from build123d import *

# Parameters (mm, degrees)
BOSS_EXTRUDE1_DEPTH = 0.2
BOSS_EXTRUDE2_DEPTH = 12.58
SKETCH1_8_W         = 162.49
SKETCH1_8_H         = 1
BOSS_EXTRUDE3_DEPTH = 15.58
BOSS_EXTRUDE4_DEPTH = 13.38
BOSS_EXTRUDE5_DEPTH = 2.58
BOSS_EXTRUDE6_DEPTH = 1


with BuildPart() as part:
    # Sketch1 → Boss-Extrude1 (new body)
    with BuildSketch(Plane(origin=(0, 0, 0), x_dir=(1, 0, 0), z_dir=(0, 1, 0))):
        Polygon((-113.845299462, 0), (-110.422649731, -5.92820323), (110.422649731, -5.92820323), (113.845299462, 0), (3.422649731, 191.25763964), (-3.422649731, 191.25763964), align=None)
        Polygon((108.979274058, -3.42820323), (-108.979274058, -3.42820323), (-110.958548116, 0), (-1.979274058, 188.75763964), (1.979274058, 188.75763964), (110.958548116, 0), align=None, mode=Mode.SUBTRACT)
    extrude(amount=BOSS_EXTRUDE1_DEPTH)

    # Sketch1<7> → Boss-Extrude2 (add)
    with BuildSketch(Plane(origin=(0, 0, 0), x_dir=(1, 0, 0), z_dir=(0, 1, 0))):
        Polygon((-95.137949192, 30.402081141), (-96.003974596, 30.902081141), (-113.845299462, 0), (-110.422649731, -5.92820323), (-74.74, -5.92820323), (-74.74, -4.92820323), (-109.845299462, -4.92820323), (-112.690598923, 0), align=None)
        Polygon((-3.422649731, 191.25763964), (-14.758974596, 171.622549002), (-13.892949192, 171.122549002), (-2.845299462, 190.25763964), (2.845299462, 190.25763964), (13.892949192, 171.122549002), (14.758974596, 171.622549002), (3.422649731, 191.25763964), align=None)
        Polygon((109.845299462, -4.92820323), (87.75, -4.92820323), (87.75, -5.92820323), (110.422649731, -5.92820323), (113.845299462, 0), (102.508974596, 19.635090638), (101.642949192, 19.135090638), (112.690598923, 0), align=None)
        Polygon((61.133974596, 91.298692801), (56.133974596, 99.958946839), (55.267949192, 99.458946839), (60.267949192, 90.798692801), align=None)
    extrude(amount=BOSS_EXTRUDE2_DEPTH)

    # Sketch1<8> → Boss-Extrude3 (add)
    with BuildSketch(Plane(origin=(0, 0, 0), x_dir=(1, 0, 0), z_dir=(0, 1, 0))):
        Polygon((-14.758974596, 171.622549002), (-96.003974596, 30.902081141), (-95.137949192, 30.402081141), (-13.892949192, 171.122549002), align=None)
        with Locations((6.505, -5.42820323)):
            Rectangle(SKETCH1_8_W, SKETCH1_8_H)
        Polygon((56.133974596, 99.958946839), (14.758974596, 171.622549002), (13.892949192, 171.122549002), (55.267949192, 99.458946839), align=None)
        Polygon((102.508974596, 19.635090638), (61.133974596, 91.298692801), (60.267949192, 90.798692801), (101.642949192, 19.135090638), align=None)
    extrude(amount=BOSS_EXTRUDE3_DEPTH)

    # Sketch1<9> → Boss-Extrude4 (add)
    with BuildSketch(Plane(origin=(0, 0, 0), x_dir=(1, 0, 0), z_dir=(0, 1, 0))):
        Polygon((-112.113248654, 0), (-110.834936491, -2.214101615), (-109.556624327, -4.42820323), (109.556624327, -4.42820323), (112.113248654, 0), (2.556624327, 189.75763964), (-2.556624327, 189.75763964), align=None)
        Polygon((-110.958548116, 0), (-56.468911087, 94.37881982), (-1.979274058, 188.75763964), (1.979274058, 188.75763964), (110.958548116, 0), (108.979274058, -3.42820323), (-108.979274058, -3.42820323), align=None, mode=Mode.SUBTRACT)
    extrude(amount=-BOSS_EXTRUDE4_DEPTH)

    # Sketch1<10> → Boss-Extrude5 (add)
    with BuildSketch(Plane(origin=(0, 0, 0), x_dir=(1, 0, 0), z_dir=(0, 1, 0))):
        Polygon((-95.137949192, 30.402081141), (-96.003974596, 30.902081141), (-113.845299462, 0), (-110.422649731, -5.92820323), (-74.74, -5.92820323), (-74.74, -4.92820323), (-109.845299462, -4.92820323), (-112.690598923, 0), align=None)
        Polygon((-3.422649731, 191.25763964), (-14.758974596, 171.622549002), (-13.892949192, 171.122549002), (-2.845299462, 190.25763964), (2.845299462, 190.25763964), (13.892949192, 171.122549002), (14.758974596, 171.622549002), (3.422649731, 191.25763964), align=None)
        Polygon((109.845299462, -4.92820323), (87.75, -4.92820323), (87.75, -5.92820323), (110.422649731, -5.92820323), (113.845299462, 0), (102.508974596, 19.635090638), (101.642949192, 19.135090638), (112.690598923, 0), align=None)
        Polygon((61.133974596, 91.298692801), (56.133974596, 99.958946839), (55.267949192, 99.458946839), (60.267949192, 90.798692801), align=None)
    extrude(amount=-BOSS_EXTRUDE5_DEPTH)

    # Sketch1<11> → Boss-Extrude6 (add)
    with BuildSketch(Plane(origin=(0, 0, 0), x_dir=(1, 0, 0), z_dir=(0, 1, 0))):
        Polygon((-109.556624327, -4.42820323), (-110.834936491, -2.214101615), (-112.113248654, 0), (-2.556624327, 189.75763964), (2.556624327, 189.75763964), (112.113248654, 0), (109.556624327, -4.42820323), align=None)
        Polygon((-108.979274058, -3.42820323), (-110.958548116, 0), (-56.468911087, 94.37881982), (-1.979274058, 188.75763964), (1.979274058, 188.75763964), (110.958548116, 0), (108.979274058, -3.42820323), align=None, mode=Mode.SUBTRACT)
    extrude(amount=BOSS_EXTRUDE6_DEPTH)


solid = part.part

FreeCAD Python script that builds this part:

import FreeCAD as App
import Part
import Sketcher
Q = App.Units.Quantity


def add_polygon(sketch, points):
    """Adds a closed chain of lines whose ends are joined by coincident constraints."""
    first, n = sketch.GeometryCount, len(points)
    for a, b in zip(points, points[1:] + points[:1]):
        sketch.addGeometry(Part.LineSegment(App.Vector(*a, 0), App.Vector(*b, 0)), False)
    for i in range(n):
        sketch.addConstraint(Sketcher.Constraint("Coincident", first + i, 2, first + (i + 1) % n, 1))

doc = App.newDocument("Part")
body = doc.addObject("PartDesign::Body", "Body")

# Sketch on XZ plane
sketch1 = body.newObject("Sketcher::SketchObject", "Sketch")
sketch1.AttachmentSupport = (doc.getObject("XZ_Plane"), [""])
sketch1.MapMode = "FlatFace"
add_polygon(sketch1, [(-113.845299, 0), (-110.42265, 5.928203), (110.42265, 5.928203), (113.845299, 0), (3.42265, -191.25764), (-3.42265, -191.25764)])  # lines 0-5
add_polygon(sketch1, [(110.958548, 0), (108.979274, 3.428203), (-108.979274, 3.428203), (-110.958548, 0), (-1.979274, -188.75764), (1.979274, -188.75764)])  # lines 6-11
sketch1.addConstraint([
    Sketcher.Constraint("Horizontal", 1),
    Sketcher.Constraint("Horizontal", 4),
    Sketcher.Constraint("Horizontal", 7),
    Sketcher.Constraint("Horizontal", 10),
    Sketcher.Constraint("Symmetric", 2, 2, 5, 2, -1, 1),
    Sketcher.Constraint("Symmetric", 8, 2, 11, 2, -1, 1),
    Sketcher.Constraint("PointOnObject", 2, 2, -1),
    Sketcher.Constraint("PointOnObject", 8, 2, -1),
    Sketcher.Constraint("Parallel", 0, 3),
    Sketcher.Constraint("Parallel", 2, 5),
    Sketcher.Constraint("Parallel", 5, 6),
    Sketcher.Constraint("Parallel", 3, 8),
    Sketcher.Constraint("Parallel", 6, 9),
    Sketcher.Constraint("Parallel", 8, 11),
    Sketcher.Constraint("Equal", 0, 2),
    Sketcher.Constraint("Angle", 0, Q("60 deg")),
    Sketcher.Constraint("DistanceX", 3, 2, 1, 2, Q("107 mm")),
    Sketcher.Constraint("DistanceX", 7, 2, 9, 2, Q("107 mm")),
    Sketcher.Constraint("DistanceY", 6, 2, 1, 2, Q("2.5 mm")),
    Sketcher.Constraint("DistanceX", 1, 1, 1, 2, Q("220.845299 mm")),
    Sketcher.Constraint("Distance", 0, Q("6.845299 mm")),
    Sketcher.Constraint("DistanceX", 7, 2, 7, 1, Q("217.958548 mm")),
])
pad1 = body.newObject("PartDesign::Pad", "Pad")
pad1.Profile = sketch1
pad1.Length = 0.2
pad1.Reversed = True

# Sketch on XZ plane
sketch2 = body.newObject("Sketcher::SketchObject", "Sketch001")
sketch2.AttachmentSupport = (doc.getObject("XZ_Plane"), [""])
sketch2.MapMode = "FlatFace"
add_polygon(sketch2, [(-95.137949, -30.402081), (-96.003975, -30.902081), (-113.845299, 0), (-110.42265, 5.928203), (-74.74, 5.928203), (-74.74, 4.928203), (-109.845299, 4.928203), (-112.690599, 0)])  # lines 0-7
add_polygon(sketch2, [(-3.42265, -191.25764), (-14.758975, -171.622549), (-13.892949, -171.122549), (-2.845299, -190.25764), (2.845299, -190.25764), (13.892949, -171.122549), (14.758975, -171.622549), (3.42265, -191.25764)])  # lines 8-15
add_polygon(sketch2, [(109.845299, 4.928203), (87.75, 4.928203), (87.75, 5.928203), (110.42265, 5.928203), (113.845299, 0), (102.508975, -19.635091), (101.642949, -19.135091), (112.690599, 0)])  # lines 16-23
add_polygon(sketch2, [(61.133975, -91.298693), (56.133975, -99.958947), (55.267949, -99.458947), (60.267949, -90.798693)])  # lines 24-27
sketch2.addConstraint([
    Sketcher.Constraint("Horizontal", 3),
    Sketcher.Constraint("Vertical", 4),
    Sketcher.Constraint("Horizontal", 5),
    Sketcher.Constraint("Horizontal", 11),
    Sketcher.Constraint("Horizontal", 15),
    Sketcher.Constraint("Horizontal", 16),
    Sketcher.Constraint("Vertical", 17),
    Sketcher.Constraint("Horizontal", 18),
    Sketcher.Constraint("Symmetric", 1, 2, 19, 2, -1, 1),
    Sketcher.Constraint("Symmetric", 6, 2, 22, 2, -1, 1),
    Sketcher.Constraint("Symmetric", 9, 2, 12, 2, -2),
    Sketcher.Constraint("Symmetric", 8, 2, 13, 2, -2),
    Sketcher.Constraint("Symmetric", 2, 2, 18, 2, -2),
    Sketcher.Constraint("Symmetric", 5, 2, 23, 2, -2),
    Sketcher.Constraint("PointOnObject", 1, 2, -1),
    Sketcher.Constraint("PointOnObject", 6, 2, -1),
    Sketcher.Constraint("Perpendicular", 0, 1),
    Sketcher.Constraint("Parallel", 2, 6),
    Sketcher.Constraint("Parallel", 1, 7),
    Sketcher.Constraint("Parallel", 7, 8),
    Sketcher.Constraint("Perpendicular", 8, 9),
    Sketcher.Constraint("Perpendicular", 9, 10),
    Sketcher.Constraint("Parallel", 6, 12),
    Sketcher.Constraint("Perpendicular", 12, 13),
    Sketcher.Constraint("Perpendicular", 13, 14),
    Sketcher.Constraint("Parallel", 14, 20),
    Sketcher.Constraint("Perpendicular", 20, 21),
    Sketcher.Constraint("Perpendicular", 21, 22),
    Sketcher.Constraint("Parallel", 22, 24),
    Sketcher.Constraint("Perpendicular", 24, 25),
    Sketcher.Constraint("Perpendicular", 25, 26),
    Sketcher.Constraint("Perpendicular", 26, 27),
    Sketcher.Constraint("Equal", 0, 9),
    Sketcher.Constraint("Equal", 14, 20),
    Sketcher.Constraint("Equal", 12, 22),
    Sketcher.Constraint("Equal", 21, 25),
    Sketcher.Constraint("DistanceY", 4, 2, 4, 1, Q("1 mm")),
    Sketcher.Constraint("Angle", 0, Q("-150 deg")),
    Sketcher.Constraint("Distance", 0, Q("1 mm")),
    Sketcher.Constraint("Distance", 24, Q("10 mm")),
    Sketcher.Constraint("DistanceX", 1, 2, 5, 2, Q("4 mm")),
    Sketcher.Constraint("DistanceX", 3, 2, -1, 1, Q("74.74 mm")),
    Sketcher.Constraint("DistanceX", -1, 1, 16, 2, Q("87.75 mm")),
    Sketcher.Constraint("DistanceX", 13, 2, 20, 2, Q("87.75 mm")),
    Sketcher.Constraint("DistanceX", 5, 2, 5, 1, Q("35.105299 mm")),
    Sketcher.Constraint("DistanceX", 11, 1, 11, 2, Q("5.690599 mm")),
    Sketcher.Constraint("DistanceX", 0, 2, 8, 2, Q("81.245 mm")),
    Sketcher.Constraint("DistanceX", 13, 2, 24, 2, Q("41.375 mm")),
    Sketcher.Constraint("DistanceY", 8, 2, -1, 1, Q("171.622549 mm")),
    Sketcher.Constraint("DistanceY", 24, 2, -1, 1, Q("99.958947 mm")),
])
pad2 = body.newObject("PartDesign::Pad", "Pad001")
pad2.Profile = sketch2
pad2.Length = 12.58
pad2.Reversed = True

# Sketch on XZ plane
sketch3 = body.newObject("Sketcher::SketchObject", "Sketch002")
sketch3.AttachmentSupport = (doc.getObject("XZ_Plane"), [""])
sketch3.MapMode = "FlatFace"
add_polygon(sketch3, [(-14.758975, -171.622549), (-96.003975, -30.902081), (-95.137949, -30.402081), (-13.892949, -171.122549)])  # lines 0-3
add_polygon(sketch3, [(-74.74, 4.928203), (-74.74, 5.928203), (87.75, 5.928203), (87.75, 4.928203)])  # lines 4-7
add_polygon(sketch3, [(56.133975, -99.958947), (14.758975, -171.622549), (13.892949, -171.122549), (55.267949, -99.458947)])  # lines 8-11
add_polygon(sketch3, [(102.508975, -19.635091), (61.133975, -91.298693), (60.267949, -90.798693), (101.642949, -19.135091)])  # lines 12-15
sketch3.addConstraint([
    Sketcher.Constraint("Vertical", 4),
    Sketcher.Constraint("Horizontal", 5),
    Sketcher.Constraint("Vertical", 6),
    Sketcher.Constraint("Horizontal", 7),
    Sketcher.Constraint("Symmetric", 3, 2, 8, 2, -2),
    Sketcher.Constraint("Symmetric", 2, 2, 9, 2, -2),
    Sketcher.Constraint("Perpendicular", 0, 1),
    Sketcher.Constraint("Perpendicular", 1, 2),
    Sketcher.Constraint("Perpendicular", 2, 3),
    Sketcher.Constraint("Perpendicular", 8, 9),
    Sketcher.Constraint("Perpendicular", 9, 10),
    Sketcher.Constraint("Perpendicular", 10, 11),
    Sketcher.Constraint("Perpendicular", 11, 12),
    Sketcher.Constraint("Perpendicular", 12, 13),
    Sketcher.Constraint("Perpendicular", 13, 14),
    Sketcher.Constraint("Perpendicular", 14, 15),
    Sketcher.Constraint("Equal", 10, 12),
    Sketcher.Constraint("Equal", 11, 13),
    Sketcher.Constraint("DistanceY", 4, 1, 4, 2, Q("1 mm")),
    Sketcher.Constraint("Angle", 0, Q("120 deg")),
    Sketcher.Constraint("Distance", 1, Q("1 mm")),
    Sketcher.Constraint("DistanceX", 11, 2, 12, 2, Q("5 mm")),
    Sketcher.Constraint("DistanceX", 5, 1, 5, 2, Q("162.49 mm")),
    Sketcher.Constraint("Distance", 0, Q("162.49 mm")),
    Sketcher.Constraint("Distance", 8, Q("82.75 mm")),
    Sketcher.Constraint("DistanceX", 4, 2, -1, 1, Q("74.74 mm")),
    Sketcher.Constraint("DistanceX", 2, 2, 9, 2, Q("27.785898 mm")),
    Sketcher.Constraint("DistanceY", 0, 2, -1, 1, Q("30.902081 mm")),
    Sketcher.Constraint("DistanceY", 14, 2, -1, 1, Q("19.135091 mm")),
    Sketcher.Constraint("DistanceY", 10, 2, 6, 2, Q("104.38715 mm")),
])
pad3 = body.newObject("PartDesign::Pad", "Pad002")
pad3.Profile = sketch3
pad3.Length = 15.58
pad3.Reversed = True

# Sketch on XZ plane
sketch4 = body.newObject("Sketcher::SketchObject", "Sketch003")
sketch4.AttachmentSupport = (doc.getObject("XZ_Plane"), [""])
sketch4.MapMode = "FlatFace"
add_polygon(sketch4, [(-112.113249, 0), (-110.834936, 2.214102), (-109.556624, 4.428203), (109.556624, 4.428203), (112.113249, 0), (2.556624, -189.75764), (-2.556624, -189.75764)])  # lines 0-6
add_polygon(sketch4, [(-108.979274, 3.428203), (-110.958548, 0), (-1.979274, -188.75764), (1.979274, -188.75764), (110.958548, 0), (108.979274, 3.428203)])  # lines 7-12
sketch4.addConstraint([
    Sketcher.Constraint("Horizontal", 2),
    Sketcher.Constraint("Horizontal", 5),
    Sketcher.Constraint("Horizontal", 9),
    Sketcher.Constraint("Horizontal", 12),
    Sketcher.Constraint("Symmetric", 3, 2, 6, 2, -1, 1),
    Sketcher.Constraint("Symmetric", 7, 2, 10, 2, -1, 1),
    Sketcher.Constraint("PointOnObject", 3, 2, -1),
    Sketcher.Constraint("PointOnObject", 7, 2, -1),
    Sketcher.Constraint("Parallel", 0, 1),
    Sketcher.Constraint("Parallel", 1, 4),
    Sketcher.Constraint("Parallel", 3, 6),
    Sketcher.Constraint("Parallel", 4, 7),
    Sketcher.Constraint("Parallel", 6, 8),
    Sketcher.Constraint("Parallel", 7, 10),
    Sketcher.Constraint("Parallel", 8, 11),
    Sketcher.Constraint("Equal", 0, 1),
    Sketcher.Constraint("Equal", 4, 6),
    Sketcher.Constraint("Angle", 0, Q("60 deg")),
    Sketcher.Constraint("DistanceX", 4, 2, 2, 2, Q("107 mm")),
    Sketcher.Constraint("DistanceY", 5, 2, 8, 2, Q("1 mm")),
    Sketcher.Constraint("DistanceY", 11, 2, 2, 2, Q("1 mm")),
    Sketcher.Constraint("DistanceX", 2, 1, 2, 2, Q("219.113249 mm")),
    Sketcher.Constraint("DistanceX", 9, 1, 9, 2, Q("3.958548 mm")),
    Sketcher.Constraint("DistanceY", -1, 1, 0, 2, Q("2.214102 mm")),
])
pad4 = body.newObject("PartDesign::Pad", "Pad003")
pad4.Profile = sketch4
pad4.Length = 13.38

# Sketch on XZ plane
sketch5 = body.newObject("Sketcher::SketchObject", "Sketch004")
sketch5.AttachmentSupport = (doc.getObject("XZ_Plane"), [""])
sketch5.MapMode = "FlatFace"
add_polygon(sketch5, [(-95.137949, -30.402081), (-96.003975, -30.902081), (-113.845299, 0), (-110.42265, 5.928203), (-74.74, 5.928203), (-74.74, 4.928203), (-109.845299, 4.928203), (-112.690599, 0)])  # lines 0-7
add_polygon(sketch5, [(-3.42265, -191.25764), (-14.758975, -171.622549), (-13.892949, -171.122549), (-2.845299, -190.25764), (2.845299, -190.25764), (13.892949, -171.122549), (14.758975, -171.622549), (3.42265, -191.25764)])  # lines 8-15
add_polygon(sketch5, [(109.845299, 4.928203), (87.75, 4.928203), (87.75, 5.928203), (110.42265, 5.928203), (113.845299, 0), (102.508975, -19.635091), (101.642949, -19.135091), (112.690599, 0)])  # lines 16-23
add_polygon(sketch5, [(61.133975, -91.298693), (56.133975, -99.958947), (55.267949, -99.458947), (60.267949, -90.798693)])  # lines 24-27
sketch5.addConstraint([
    Sketcher.Constraint("Horizontal", 3),
    Sketcher.Constraint("Vertical", 4),
    Sketcher.Constraint("Horizontal", 5),
    Sketcher.Constraint("Horizontal", 11),
    Sketcher.Constraint("Horizontal", 15),
    Sketcher.Constraint("Horizontal", 16),
    Sketcher.Constraint("Vertical", 17),
    Sketcher.Constraint("Horizontal", 18),
    Sketcher.Constraint("Symmetric", 1, 2, 19, 2, -1, 1),
    Sketcher.Constraint("Symmetric", 6, 2, 22, 2, -1, 1),
    Sketcher.Constraint("Symmetric", 9, 2, 12, 2, -2),
    Sketcher.Constraint("Symmetric", 8, 2, 13, 2, -2),
    Sketcher.Constraint("Symmetric", 2, 2, 18, 2, -2),
    Sketcher.Constraint("Symmetric", 5, 2, 23, 2, -2),
    Sketcher.Constraint("PointOnObject", 1, 2, -1),
    Sketcher.Constraint("PointOnObject", 6, 2, -1),
    Sketcher.Constraint("Perpendicular", 0, 1),
    Sketcher.Constraint("Parallel", 2, 6),
    Sketcher.Constraint("Parallel", 1, 7),
    Sketcher.Constraint("Parallel", 7, 8),
    Sketcher.Constraint("Perpendicular", 8, 9),
    Sketcher.Constraint("Perpendicular", 9, 10),
    Sketcher.Constraint("Parallel", 6, 12),
    Sketcher.Constraint("Perpendicular", 12, 13),
    Sketcher.Constraint("Perpendicular", 13, 14),
    Sketcher.Constraint("Parallel", 14, 20),
    Sketcher.Constraint("Perpendicular", 20, 21),
    Sketcher.Constraint("Perpendicular", 21, 22),
    Sketcher.Constraint("Parallel", 22, 24),
    Sketcher.Constraint("Perpendicular", 24, 25),
    Sketcher.Constraint("Perpendicular", 25, 26),
    Sketcher.Constraint("Perpendicular", 26, 27),
    Sketcher.Constraint("Equal", 0, 9),
    Sketcher.Constraint("Equal", 14, 20),
    Sketcher.Constraint("Equal", 12, 22),
    Sketcher.Constraint("Equal", 21, 25),
    Sketcher.Constraint("DistanceY", 4, 2, 4, 1, Q("1 mm")),
    Sketcher.Constraint("Angle", 0, Q("-150 deg")),
    Sketcher.Constraint("Distance", 0, Q("1 mm")),
    Sketcher.Constraint("Distance", 24, Q("10 mm")),
    Sketcher.Constraint("DistanceX", 1, 2, 5, 2, Q("4 mm")),
    Sketcher.Constraint("DistanceX", 3, 2, -1, 1, Q("74.74 mm")),
    Sketcher.Constraint("DistanceX", -1, 1, 16, 2, Q("87.75 mm")),
    Sketcher.Constraint("DistanceX", 13, 2, 20, 2, Q("87.75 mm")),
    Sketcher.Constraint("DistanceX", 5, 2, 5, 1, Q("35.105299 mm")),
    Sketcher.Constraint("DistanceX", 11, 1, 11, 2, Q("5.690599 mm")),
    Sketcher.Constraint("DistanceX", 0, 2, 8, 2, Q("81.245 mm")),
    Sketcher.Constraint("DistanceX", 13, 2, 24, 2, Q("41.375 mm")),
    Sketcher.Constraint("DistanceY", 8, 2, -1, 1, Q("171.622549 mm")),
    Sketcher.Constraint("DistanceY", 24, 2, -1, 1, Q("99.958947 mm")),
])
pad5 = body.newObject("PartDesign::Pad", "Pad004")
pad5.Profile = sketch5
pad5.Length = 2.58

# Sketch on XZ plane
sketch6 = body.newObject("Sketcher::SketchObject", "Sketch005")
sketch6.AttachmentSupport = (doc.getObject("XZ_Plane"), [""])
sketch6.MapMode = "FlatFace"
add_polygon(sketch6, [(-110.834936, 2.214102), (-109.556624, 4.428203), (109.556624, 4.428203), (112.113249, 0), (2.556624, -189.75764), (-2.556624, -189.75764), (-112.113249, 0)])  # lines 0-6
add_polygon(sketch6, [(-108.979274, 3.428203), (-110.958548, 0), (-1.979274, -188.75764), (1.979274, -188.75764), (110.958548, 0), (108.979274, 3.428203)])  # lines 7-12
sketch6.addConstraint([
    Sketcher.Constraint("Horizontal", 1),
    Sketcher.Constraint("Horizontal", 4),
    Sketcher.Constraint("Horizontal", 9),
    Sketcher.Constraint("Horizontal", 12),
    Sketcher.Constraint("Symmetric", 2, 2, 5, 2, -1, 1),
    Sketcher.Constraint("Symmetric", 7, 2, 10, 2, -1, 1),
    Sketcher.Constraint("PointOnObject", 2, 2, -1),
    Sketcher.Constraint("PointOnObject", 7, 2, -1),
    Sketcher.Constraint("Parallel", 0, 3),
    Sketcher.Constraint("Parallel", 2, 5),
    Sketcher.Constraint("Parallel", 3, 6),
    Sketcher.Constraint("Parallel", 6, 7),
    Sketcher.Constraint("Parallel", 5, 8),
    Sketcher.Constraint("Parallel", 7, 10),
    Sketcher.Constraint("Parallel", 8, 11),
    Sketcher.Constraint("Equal", 3, 5),
    Sketcher.Constraint("Equal", 0, 6),
    Sketcher.Constraint("Angle", 0, Q("60 deg")),
    Sketcher.Constraint("DistanceX", 3, 2, 1, 2, Q("107 mm")),
    Sketcher.Constraint("DistanceY", 4, 2, 8, 2, Q("1 mm")),
    Sketcher.Constraint("DistanceY", 11, 2, 1, 2, Q("1 mm")),
    Sketcher.Constraint("DistanceX", 1, 1, 1, 2, Q("219.113249 mm")),
    Sketcher.Constraint("DistanceX", 9, 1, 9, 2, Q("3.958548 mm")),
    Sketcher.Constraint("DistanceY", -1, 1, 6, 2, Q("2.214102 mm")),
])
pad6 = body.newObject("PartDesign::Pad", "Pad005")
pad6.Profile = sketch6
pad6.Length = 1
pad6.Reversed = True

doc.recompute()
